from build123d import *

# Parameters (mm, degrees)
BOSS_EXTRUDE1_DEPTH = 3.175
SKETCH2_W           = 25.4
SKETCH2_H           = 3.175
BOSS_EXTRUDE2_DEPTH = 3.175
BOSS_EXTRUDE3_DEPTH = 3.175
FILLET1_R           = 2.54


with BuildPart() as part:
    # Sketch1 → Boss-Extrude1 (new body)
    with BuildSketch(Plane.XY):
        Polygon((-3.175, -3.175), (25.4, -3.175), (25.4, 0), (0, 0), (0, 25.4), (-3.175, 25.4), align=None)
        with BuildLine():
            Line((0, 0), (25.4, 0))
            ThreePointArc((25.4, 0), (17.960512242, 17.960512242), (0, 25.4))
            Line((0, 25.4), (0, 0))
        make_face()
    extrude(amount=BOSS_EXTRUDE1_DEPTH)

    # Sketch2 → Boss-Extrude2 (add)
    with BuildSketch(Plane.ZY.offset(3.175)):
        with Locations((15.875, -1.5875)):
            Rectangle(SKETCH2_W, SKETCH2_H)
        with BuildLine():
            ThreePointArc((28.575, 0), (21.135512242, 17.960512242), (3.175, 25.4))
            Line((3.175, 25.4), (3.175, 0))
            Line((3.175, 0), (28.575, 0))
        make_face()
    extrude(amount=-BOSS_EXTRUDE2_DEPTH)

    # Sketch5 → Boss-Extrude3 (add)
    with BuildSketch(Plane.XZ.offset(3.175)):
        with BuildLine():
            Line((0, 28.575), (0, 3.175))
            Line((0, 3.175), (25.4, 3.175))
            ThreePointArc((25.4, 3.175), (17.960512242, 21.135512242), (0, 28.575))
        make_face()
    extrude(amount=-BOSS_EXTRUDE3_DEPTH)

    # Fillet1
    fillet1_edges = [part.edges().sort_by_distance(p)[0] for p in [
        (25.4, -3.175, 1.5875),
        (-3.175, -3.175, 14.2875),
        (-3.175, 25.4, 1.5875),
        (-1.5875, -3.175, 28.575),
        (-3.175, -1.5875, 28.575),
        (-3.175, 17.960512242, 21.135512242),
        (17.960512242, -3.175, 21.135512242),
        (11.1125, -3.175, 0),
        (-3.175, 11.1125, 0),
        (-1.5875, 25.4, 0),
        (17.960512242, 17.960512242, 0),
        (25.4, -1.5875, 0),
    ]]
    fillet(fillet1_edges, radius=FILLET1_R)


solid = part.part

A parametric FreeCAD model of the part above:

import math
import FreeCAD as App
import Part
import Sketcher
from FreeCAD import Vector
Q = App.Units.Quantity


def edges_at(feature, points):
    """Names of the edges that pass closest to the given points."""
    edges = feature.Shape.Edges
    near = lambda p: min(range(len(edges)), key=lambda i: edges[i].distToShape(Part.Vertex(*p))[0])
    return sorted({f"Edge{near(p) + 1}" for p in points})

doc = App.newDocument("Part")
params = doc.addObject("Spreadsheet::Sheet", "Params")
for row, (alias, value) in enumerate([
    ("sketch1_radius", "1 in"),
    ("sketch1_width", "1.125 in"),
    ("pad1_length", "0.125 in"),
    ("sketch2_radius", "1 in"),
    ("sketch2_height", "1 in"),
    ("sketch2_width", "0.125 in"),
    ("pad2_length", "0.125 in"),
    ("sketch3_radius", "1 in"),
    ("pad3_length", "0.125 in"),
    ("fillet_radius", "0.1 in"),
], start=1):
    params.set(f"A{row}", alias)
    params.set(f"B{row}", "=" + value)
    params.setAlias(f"B{row}", alias)

body = doc.addObject("PartDesign::Body", "Body")

sketch1 = body.newObject("Sketcher::SketchObject", "Sketch")
sketch1.AttachmentSupport = (doc.getObject("XY_Plane"), [""])
sketch1.MapMode = "FlatFace"
sketch1.addGeometry(Part.LineSegment(Vector(-3.2, -3.2, 0), Vector(25.4, -3.2, 0)), False)
sketch1.addGeometry(Part.LineSegment(Vector(25.4, -3.2, 0), Vector(25.4, 0, 0)), False)
sketch1.addGeometry(Part.ArcOfCircle(Part.Circle(Vector(0, 0, 0), Vector(0, 0, 1), 25.4), math.radians(0), math.radians(90)), False)
sketch1.addGeometry(Part.LineSegment(Vector(0, 25.4, 0), Vector(-3.2, 25.4, 0)), False)
sketch1.addGeometry(Part.LineSegment(Vector(-3.2, 25.4, 0), Vector(-3.2, -3.2, 0)), False)
sketch1.addConstraint(Sketcher.Constraint("Coincident", 0, 2, 1, 1))
sketch1.addConstraint(Sketcher.Constraint("Tangent", 1, 2, 2, 1))
sketch1.addConstraint(Sketcher.Constraint("Tangent", 2, 2, 3, 1))
sketch1.addConstraint(Sketcher.Constraint("Coincident", 3, 2, 4, 1))
sketch1.addConstraint(Sketcher.Constraint("Coincident", 4, 2, 0, 1))
sketch1.addConstraint(Sketcher.Constraint("Horizontal", 0))
sketch1.addConstraint(Sketcher.Constraint("Vertical", 1))
sketch1.addConstraint(Sketcher.Constraint("Horizontal", 3))
sketch1.addConstraint(Sketcher.Constraint("Vertical", 4))
sketch1.addConstraint(Sketcher.Constraint("Coincident", 2, 3, -1, 1))
sketch1.addConstraint(Sketcher.Constraint("Equal", 3, 1))
sketch1.addConstraint(Sketcher.Constraint("Radius", 2, Q("1 in")))
sketch1.addConstraint(Sketcher.Constraint("DistanceX", 0, 1, 0, 2, Q("1.125 in")))
sketch1.setExpression("Constraints[11]", "Params.sketch1_radius")
sketch1.setExpression("Constraints[12]", "Params.sketch1_width")
pad1 = body.newObject("PartDesign::Pad", "Pad")
pad1.Profile = sketch1
pad1.setExpression("Length", "Params.pad1_length")

sketch2 = body.newObject("Sketcher::SketchObject", "Sketch001")
sketch2.AttachmentSupport = (doc.getObject("YZ_Plane"), [""])
sketch2.MapMode = "FlatFace"
sketch2.AttachmentOffset = App.Placement(Vector(0, 0, -0.125 * 25.4), App.Rotation())
sketch2.addGeometry(Part.LineSegment(Vector(-3.2, 3.2, 0), Vector(-3.2, 28.6, 0)), False)
sketch2.addGeometry(Part.LineSegment(Vector(-3.2, 28.6, 0), Vector(0, 28.6, 0)), False)
sketch2.addGeometry(Part.ArcOfCircle(Part.Circle(Vector(0, 3.2, 0), Vector(0, 0, 1), 25.4), math.radians(0), math.radians(90)), False)
sketch2.addGeometry(Part.LineSegment(Vector(25.4, 3.2, 0), Vector(-3.2, 3.2, 0)), False)
sketch2.addConstraint(Sketcher.Constraint("Coincident", 0, 2, 1, 1))
sketch2.addConstraint(Sketcher.Constraint("Tangent", 1, 2, 2, 2))
sketch2.addConstraint(Sketcher.Constraint("Coincident", 2, 1, 3, 1))
sketch2.addConstraint(Sketcher.Constraint("Coincident", 3, 2, 0, 1))
sketch2.addConstraint(Sketcher.Constraint("Vertical", 0))
sketch2.addConstraint(Sketcher.Constraint("Horizontal", 1))
sketch2.addConstraint(Sketcher.Constraint("Horizontal", 3))
sketch2.addConstraint(Sketcher.Constraint("PointOnObject", 2, 3, -2))
sketch2.addConstraint(Sketcher.Constraint("Radius", 2, Q("1 in")))
sketch2.addConstraint(Sketcher.Constraint("DistanceY", 0, 1, 0, 2, Q("1 in")))
sketch2.addConstraint(Sketcher.Constraint("DistanceX", 1, 1, 1, 2, Q("0.125 in")))
sketch2.addConstraint(Sketcher.Constraint("DistanceY", -1, 1, 2, 3, Q("0.125 in")))
sketch2.setExpression("Constraints[8]", "Params.sketch2_radius")
sketch2.setExpression("Constraints[9]", "Params.sketch2_height")
sketch2.setExpression("Constraints[10]", "Params.sketch2_width")
pad2 = body.newObject("PartDesign::Pad", "Pad001")
pad2.Profile = sketch2
pad2.setExpression("Length", "Params.pad2_length")

sketch3 = body.newObject("Sketcher::SketchObject", "Sketch002")
sketch3.AttachmentSupport = (doc.getObject("XZ_Plane"), [""])
sketch3.MapMode = "FlatFace"
sketch3.AttachmentOffset = App.Placement(Vector(0, 0, 0.125 * 25.4), App.Rotation())
sketch3.addGeometry(Part.LineSegment(Vector(0, 29, 0), Vector(0, 3, 0)), False)
sketch3.addGeometry(Part.LineSegment(Vector(0, 3, 0), Vector(25, 3, 0)), False)
sketch3.addGeometry(Part.ArcOfCircle(Part.Circle(Vector(0, 3, 0), Vector(0, 0, 1), 25), math.radians(0), math.radians(90)), False)
sketch3.addConstraint(Sketcher.Constraint("Coincident", 0, 2, 1, 1))
sketch3.addConstraint(Sketcher.Constraint("Coincident", 1, 2, 2, 1))
sketch3.addConstraint(Sketcher.Constraint("Coincident", 2, 2, 0, 1))
sketch3.addConstraint(Sketcher.Constraint("Vertical", 0))
sketch3.addConstraint(Sketcher.Constraint("Horizontal", 1))
sketch3.addConstraint(Sketcher.Constraint("Coincident", 0, 2, 2, 3))
sketch3.addConstraint(Sketcher.Constraint("PointOnObject", 2, 3, -2))
sketch3.addConstraint(Sketcher.Constraint("Radius", 2, Q("1 in")))
sketch3.addConstraint(Sketcher.Constraint("DistanceY", -1, 1, 2, 3, Q("0.125 in")))
sketch3.setExpression("Constraints[7]", "Params.sketch3_radius")
pad3 = body.newObject("PartDesign::Pad", "Pad002")
pad3.Profile = sketch3
pad3.setExpression("Length", "Params.pad3_length")
pad3.Reversed = True
doc.recompute()

fillet = body.newObject("PartDesign::Fillet", "Fillet")
fillet.Base = (pad3, edges_at(pad3, [
    (25.4, -3.175, 1.587),
    (-3.175, -3.175, 14.287),
    (-3.175, 25.4, 1.587),
    (-1.587, -3.175, 28.575),
    (-3.175, -1.587, 28.575),
    (-3.175, 17.961, 21.136),
    (17.961, -3.175, 21.136),
    (11.113, -3.175, 0),
    (-3.175, 11.113, 0),
    (-1.587, 25.4, 0),
    (17.961, 17.961, 0),
    (25.4, -1.587, 0),
]))
fillet.setExpression("Radius", "Params.fillet_radius")

doc.recompute()
